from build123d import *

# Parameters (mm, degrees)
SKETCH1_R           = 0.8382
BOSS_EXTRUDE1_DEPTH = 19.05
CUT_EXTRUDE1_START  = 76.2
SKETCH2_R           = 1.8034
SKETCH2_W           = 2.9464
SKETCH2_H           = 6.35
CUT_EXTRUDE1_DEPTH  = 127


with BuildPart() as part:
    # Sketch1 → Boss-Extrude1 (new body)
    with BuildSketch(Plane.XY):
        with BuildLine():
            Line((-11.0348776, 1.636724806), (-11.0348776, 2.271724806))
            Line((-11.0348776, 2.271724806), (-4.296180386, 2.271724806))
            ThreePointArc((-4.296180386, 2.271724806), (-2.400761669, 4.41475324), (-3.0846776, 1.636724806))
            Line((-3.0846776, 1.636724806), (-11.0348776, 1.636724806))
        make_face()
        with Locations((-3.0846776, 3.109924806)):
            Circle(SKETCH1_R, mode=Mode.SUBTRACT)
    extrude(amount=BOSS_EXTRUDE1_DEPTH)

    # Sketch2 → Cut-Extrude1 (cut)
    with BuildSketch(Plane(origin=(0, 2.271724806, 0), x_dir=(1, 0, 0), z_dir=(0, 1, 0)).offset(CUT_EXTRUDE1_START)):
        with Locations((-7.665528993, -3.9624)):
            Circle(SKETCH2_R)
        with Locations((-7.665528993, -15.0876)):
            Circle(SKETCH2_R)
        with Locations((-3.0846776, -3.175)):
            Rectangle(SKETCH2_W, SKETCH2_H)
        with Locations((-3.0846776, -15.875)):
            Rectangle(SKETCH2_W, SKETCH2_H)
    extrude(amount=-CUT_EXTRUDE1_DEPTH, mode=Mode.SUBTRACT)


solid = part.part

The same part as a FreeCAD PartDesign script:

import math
import FreeCAD as App
import Part
import Sketcher

V = App.Vector
Q = App.Units.Quantity


def add_polygon(sketch, points):
    """Adds a closed chain of lines whose ends are joined by coincident constraints."""
    first, n = sketch.GeometryCount, len(points)
    for a, b in zip(points, points[1:] + points[:1]):
        sketch.addGeometry(Part.LineSegment(App.Vector(*a, 0), App.Vector(*b, 0)), False)
    for i in range(n):
        sketch.addConstraint(Sketcher.Constraint("Coincident", first + i, 2, first + (i + 1) % n, 1))

doc = App.newDocument("Part")
params = doc.addObject("Spreadsheet::Sheet", "Params")
for row, (alias, value) in enumerate([
    ("sketch1_diameter", "0.066 in"),
    ("sketch1_radius", "0.058 in"),
    ("sketch1_width", "0.313 in"),
    ("sketch1_height", "0.025 in"),
    ("pad1_length", "0.75 in"),
    ("sketch2_diameter", "0.142 in"),
    ("sketch2_height", "0.25 in"),
    ("sketch2_width", "0.116 in"),
    ("pocket1_length", "5 in"),
], start=1):
    params.set(f"A{row}", alias)
    params.set(f"B{row}", "=" + value)
    params.setAlias(f"B{row}", alias)

body = doc.addObject("PartDesign::Body", "Body")

# Sketch on XY plane
sketch1 = body.newObject("Sketcher::SketchObject", "Sketch")
sketch1.AttachmentSupport = (doc.getObject("XY_Plane"), [""])
sketch1.MapMode = "FlatFace"
sketch1.addGeometry([
    Part.LineSegment(V(-11, 2.3, 0), V(-11, 1.6, 0)),  # 0
    Part.LineSegment(V(-11, 1.6, 0), V(-3.1, 1.6, 0)),  # 1
    Part.ArcOfCircle(Part.Circle(V(-3.1, 3.1, 0), V(0, 0, 1), 1.5), math.radians(-90), math.radians(215)),  # 2
    Part.LineSegment(V(-4.3, 2.3, 0), V(-11, 2.3, 0)),  # 3
    Part.Circle(V(-3.1, 3.1, 0), V(0, 0, 1), 0.8),  # 4
], False)
sketch1.addConstraint([
    Sketcher.Constraint("Coincident", 0, 2, 1, 1),
    Sketcher.Constraint("Tangent", 1, 2, 2, 1),
    Sketcher.Constraint("Coincident", 2, 2, 3, 1),
    Sketcher.Constraint("Coincident", 3, 2, 0, 1),
    Sketcher.Constraint("Vertical", 0),
    Sketcher.Constraint("Horizontal", 1),
    Sketcher.Constraint("Horizontal", 3),
    Sketcher.Constraint("Coincident", 4, 3, 2, 3),
    Sketcher.Constraint("Diameter", 4, Q("0.066 in")),
    Sketcher.Constraint("Radius", 2, Q("0.058 in")),
    Sketcher.Constraint("DistanceX", 1, 1, 1, 2, Q("0.313 in")),
    Sketcher.Constraint("DistanceY", 0, 2, 0, 1, Q("0.025 in")),
    Sketcher.Constraint("DistanceX", 2, 2, -1, 1, Q("4.29618 mm")),
    Sketcher.Constraint("DistanceY", -1, 1, 2, 3, Q("3.109925 mm")),
])
sketch1.setExpression("Constraints[8]", "Params.sketch1_diameter")
sketch1.setExpression("Constraints[9]", "Params.sketch1_radius")
sketch1.setExpression("Constraints[10]", "Params.sketch1_width")
sketch1.setExpression("Constraints[11]", "Params.sketch1_height")
pad1 = body.newObject("PartDesign::Pad", "Pad")
pad1.Profile = sketch1
pad1.setExpression("Length", "Params.pad1_length")

# Sketch on XZ plane
sketch2 = body.newObject("Sketcher::SketchObject", "Sketch001")
sketch2.AttachmentSupport = (doc.getObject("XZ_Plane"), [""])
sketch2.MapMode = "FlatFace"
sketch2.AttachmentOffset = App.Placement(V(0, 0, -78.471725), App.Rotation())
sketch2.addGeometry(Part.Circle(V(-7.7, 4, 0), V(0, 0, 1), 1.8), False)  # 0
sketch2.addGeometry(Part.Circle(V(-7.7, 15.1, 0), V(0, 0, 1), 1.8), False)  # 1
add_polygon(sketch2, [(-4.6, 0), (-4.6, 6.3), (-1.6, 6.3), (-1.6, 0)])  # lines 2-5
add_polygon(sketch2, [(-4.6, 12.7), (-4.6, 19.1), (-1.6, 19.1), (-1.6, 12.7)])  # lines 6-9
sketch2.addConstraint([
    Sketcher.Constraint("Vertical", 2),
    Sketcher.Constraint("Horizontal", 3),
    Sketcher.Constraint("Vertical", 4),
    Sketcher.Constraint("Horizontal", 5),
    Sketcher.Constraint("Vertical", 6),
    Sketcher.Constraint("Horizontal", 7),
    Sketcher.Constraint("Vertical", 8),
    Sketcher.Constraint("Horizontal", 9),
    Sketcher.Constraint("Equal", 0, 1),
    Sketcher.Constraint("PointOnObject", 4, 2, -1),
    Sketcher.Constraint("Vertical", 0, 3, 1, 3),
    Sketcher.Constraint("Vertical", 5, 2, 6, 2),
    Sketcher.Constraint("Vertical", 4, 2, 7, 2),
    Sketcher.Constraint("Equal", 4, 6),
    Sketcher.Constraint("Diameter", 0, Q("0.142 in")),
    Sketcher.Constraint("DistanceY", 2, 1, 2, 2, Q("0.25 in")),
    Sketcher.Constraint("DistanceY", -1, 1, 8, 2, Q("0.5 in")),
    Sketcher.Constraint("DistanceX", 3, 1, 3, 2, Q("0.116 in")),
    Sketcher.Constraint("DistanceY", -1, 1, 0, 3, Q("0.156 in")),
    Sketcher.Constraint("DistanceY", -1, 1, 1, 3, Q("0.594 in")),
    Sketcher.Constraint("DistanceX", 0, 3, -1, 1, Q("7.665529 mm")),
    Sketcher.Constraint("DistanceX", 0, 3, 2, 2, Q("3.107651 mm")),
])
sketch2.setExpression("Constraints[22]", "Params.sketch2_diameter")
sketch2.setExpression("Constraints[23]", "Params.sketch2_height")
sketch2.setExpression("Constraints[25]", "Params.sketch2_width")
pocket1 = body.newObject("PartDesign::Pocket", "Pocket")
pocket1.Profile = sketch2
pocket1.setExpression("Length", "Params.pocket1_length")
pocket1.Reversed = True

doc.recompute()
